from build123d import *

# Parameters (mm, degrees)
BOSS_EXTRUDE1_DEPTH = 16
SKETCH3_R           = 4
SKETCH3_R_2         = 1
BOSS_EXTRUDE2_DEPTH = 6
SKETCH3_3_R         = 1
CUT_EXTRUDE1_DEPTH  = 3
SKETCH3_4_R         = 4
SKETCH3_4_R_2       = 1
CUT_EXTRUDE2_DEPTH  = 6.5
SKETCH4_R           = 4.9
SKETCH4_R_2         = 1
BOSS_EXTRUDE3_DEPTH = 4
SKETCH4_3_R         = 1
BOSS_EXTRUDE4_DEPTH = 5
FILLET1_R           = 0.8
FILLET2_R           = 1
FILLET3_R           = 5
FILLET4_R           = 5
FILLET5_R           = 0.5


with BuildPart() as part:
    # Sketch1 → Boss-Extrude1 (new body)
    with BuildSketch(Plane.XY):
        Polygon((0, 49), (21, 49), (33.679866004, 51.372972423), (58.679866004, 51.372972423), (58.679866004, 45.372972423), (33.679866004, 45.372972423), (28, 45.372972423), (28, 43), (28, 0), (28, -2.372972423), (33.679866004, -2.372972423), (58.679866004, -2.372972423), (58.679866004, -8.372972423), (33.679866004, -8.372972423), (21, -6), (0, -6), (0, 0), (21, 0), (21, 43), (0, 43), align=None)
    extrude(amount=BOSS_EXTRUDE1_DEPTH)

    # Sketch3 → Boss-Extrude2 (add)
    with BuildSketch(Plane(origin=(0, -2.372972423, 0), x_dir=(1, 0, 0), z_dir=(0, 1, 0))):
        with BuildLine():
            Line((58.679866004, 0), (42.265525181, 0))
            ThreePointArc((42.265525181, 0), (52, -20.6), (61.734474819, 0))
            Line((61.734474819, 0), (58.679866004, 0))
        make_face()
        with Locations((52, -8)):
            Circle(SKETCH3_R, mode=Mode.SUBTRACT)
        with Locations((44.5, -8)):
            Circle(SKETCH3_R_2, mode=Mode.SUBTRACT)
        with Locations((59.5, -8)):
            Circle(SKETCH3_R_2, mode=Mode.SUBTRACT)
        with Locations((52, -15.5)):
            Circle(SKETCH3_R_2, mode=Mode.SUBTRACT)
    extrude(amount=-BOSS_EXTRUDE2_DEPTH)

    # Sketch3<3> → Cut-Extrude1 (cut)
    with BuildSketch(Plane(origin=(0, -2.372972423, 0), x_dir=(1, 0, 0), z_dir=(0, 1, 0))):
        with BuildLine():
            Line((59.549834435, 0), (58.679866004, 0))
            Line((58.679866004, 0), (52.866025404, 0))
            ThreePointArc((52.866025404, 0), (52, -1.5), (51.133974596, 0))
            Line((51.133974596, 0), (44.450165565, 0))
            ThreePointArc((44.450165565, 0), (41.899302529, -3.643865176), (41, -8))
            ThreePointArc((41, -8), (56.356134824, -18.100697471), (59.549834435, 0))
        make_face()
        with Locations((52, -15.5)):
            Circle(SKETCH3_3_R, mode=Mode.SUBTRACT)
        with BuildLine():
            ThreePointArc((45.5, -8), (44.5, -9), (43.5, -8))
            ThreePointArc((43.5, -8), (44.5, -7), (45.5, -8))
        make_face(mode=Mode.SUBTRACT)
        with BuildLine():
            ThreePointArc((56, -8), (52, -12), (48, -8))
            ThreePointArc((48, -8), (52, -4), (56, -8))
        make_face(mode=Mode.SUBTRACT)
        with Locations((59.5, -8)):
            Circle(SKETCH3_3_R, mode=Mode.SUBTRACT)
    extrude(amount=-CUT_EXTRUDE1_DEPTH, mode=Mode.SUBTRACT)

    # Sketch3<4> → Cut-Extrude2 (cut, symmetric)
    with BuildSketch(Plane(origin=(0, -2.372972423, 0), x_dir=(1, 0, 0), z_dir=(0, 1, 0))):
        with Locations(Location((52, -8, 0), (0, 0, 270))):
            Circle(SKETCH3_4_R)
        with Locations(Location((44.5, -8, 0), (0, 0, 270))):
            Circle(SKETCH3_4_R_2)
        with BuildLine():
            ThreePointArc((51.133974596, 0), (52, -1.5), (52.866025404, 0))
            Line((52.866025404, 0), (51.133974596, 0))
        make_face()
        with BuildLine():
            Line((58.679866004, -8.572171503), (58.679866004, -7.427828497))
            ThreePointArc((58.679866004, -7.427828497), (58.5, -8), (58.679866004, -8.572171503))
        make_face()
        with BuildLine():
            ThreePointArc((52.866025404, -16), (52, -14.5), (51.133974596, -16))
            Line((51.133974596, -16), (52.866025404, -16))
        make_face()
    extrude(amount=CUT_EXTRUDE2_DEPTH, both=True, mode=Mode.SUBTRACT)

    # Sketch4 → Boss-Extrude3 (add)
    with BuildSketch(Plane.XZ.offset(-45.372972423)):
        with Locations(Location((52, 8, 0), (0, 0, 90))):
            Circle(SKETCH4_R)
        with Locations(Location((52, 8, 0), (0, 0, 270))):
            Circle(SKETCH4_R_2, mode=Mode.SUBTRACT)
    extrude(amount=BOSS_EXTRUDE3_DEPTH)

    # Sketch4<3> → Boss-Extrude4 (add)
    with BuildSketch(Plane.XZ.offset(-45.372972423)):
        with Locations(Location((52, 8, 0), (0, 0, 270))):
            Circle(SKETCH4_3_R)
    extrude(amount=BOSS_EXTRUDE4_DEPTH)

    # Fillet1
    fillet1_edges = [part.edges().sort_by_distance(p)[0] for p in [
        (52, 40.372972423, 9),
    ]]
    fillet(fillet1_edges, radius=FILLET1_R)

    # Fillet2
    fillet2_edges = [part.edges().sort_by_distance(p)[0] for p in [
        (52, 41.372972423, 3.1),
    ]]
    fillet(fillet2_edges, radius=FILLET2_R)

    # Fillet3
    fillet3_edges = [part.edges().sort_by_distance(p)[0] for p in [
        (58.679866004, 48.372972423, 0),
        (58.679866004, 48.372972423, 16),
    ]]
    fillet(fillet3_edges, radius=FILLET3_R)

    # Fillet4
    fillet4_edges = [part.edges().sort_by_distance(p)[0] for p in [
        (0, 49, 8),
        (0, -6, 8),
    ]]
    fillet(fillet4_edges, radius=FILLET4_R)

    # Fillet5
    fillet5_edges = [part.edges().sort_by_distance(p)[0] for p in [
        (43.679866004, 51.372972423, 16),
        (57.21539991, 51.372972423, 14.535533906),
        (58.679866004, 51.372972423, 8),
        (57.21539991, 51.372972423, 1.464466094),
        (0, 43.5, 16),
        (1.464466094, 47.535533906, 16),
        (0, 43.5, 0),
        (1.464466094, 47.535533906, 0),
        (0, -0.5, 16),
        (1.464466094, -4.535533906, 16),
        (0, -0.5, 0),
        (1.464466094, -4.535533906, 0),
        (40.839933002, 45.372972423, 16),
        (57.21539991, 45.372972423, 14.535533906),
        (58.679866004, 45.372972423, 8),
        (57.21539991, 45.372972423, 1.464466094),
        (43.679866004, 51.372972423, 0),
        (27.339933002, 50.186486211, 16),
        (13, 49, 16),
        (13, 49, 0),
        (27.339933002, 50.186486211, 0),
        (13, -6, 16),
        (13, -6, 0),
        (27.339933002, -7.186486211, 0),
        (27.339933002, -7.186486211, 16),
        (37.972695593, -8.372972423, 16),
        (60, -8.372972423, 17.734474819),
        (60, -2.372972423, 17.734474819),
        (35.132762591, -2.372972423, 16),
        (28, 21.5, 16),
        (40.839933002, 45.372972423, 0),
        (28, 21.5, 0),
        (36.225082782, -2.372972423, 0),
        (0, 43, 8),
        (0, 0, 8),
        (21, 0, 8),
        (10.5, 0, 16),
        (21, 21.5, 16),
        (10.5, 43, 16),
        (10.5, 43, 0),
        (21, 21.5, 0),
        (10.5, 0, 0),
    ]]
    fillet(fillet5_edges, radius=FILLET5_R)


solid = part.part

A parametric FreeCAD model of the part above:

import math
import FreeCAD as App
import Part
import Sketcher

V = App.Vector
Q = App.Units.Quantity


def edges_at(feature, points):
    """Names of the edges that pass closest to the given points."""
    edges = feature.Shape.Edges
    near = lambda p: min(range(len(edges)), key=lambda i: edges[i].distToShape(Part.Vertex(*p))[0])
    return sorted({f"Edge{near(p) + 1}" for p in points})

doc = App.newDocument("Part")
body = doc.addObject("PartDesign::Body", "Body")

# Sketch on XY plane
sketch1 = doc.addObject("Sketcher::SketchObject", "Sketch")
body.addObject(sketch1)
sketch1.AttachmentSupport = (doc.XY_Plane, [""])
sketch1.MapMode = "FlatFace"
sketch1.addGeometry([
    Part.LineSegment(V(21, 49, 0), V(0, 49, 0)),  # 0
    Part.LineSegment(V(0, 49, 0), V(0, 43, 0)),  # 1
    Part.LineSegment(V(0, 43, 0), V(21, 43, 0)),  # 2
    Part.LineSegment(V(21, 43, 0), V(21, 0, 0)),  # 3
    Part.LineSegment(V(21, 0, 0), V(0, 0, 0)),  # 4
    Part.LineSegment(V(0, 0, 0), V(0, -6, 0)),  # 5
    Part.LineSegment(V(0, -6, 0), V(21, -6, 0)),  # 6
    Part.LineSegment(V(21, -6, 0), V(33.679866, -8.372972, 0)),  # 7
    Part.LineSegment(V(33.679866, -8.372972, 0), V(58.679866, -8.372972, 0)),  # 8
    Part.LineSegment(V(58.679866, -8.372972, 0), V(58.679866, -2.372972, 0)),  # 9
    Part.LineSegment(V(58.679866, -2.372972, 0), V(28, -2.372972, 0)),  # 10
    Part.LineSegment(V(28, -2.372972, 0), V(28, 45.372972, 0)),  # 11
    Part.LineSegment(V(28, 45.372972, 0), V(58.679866, 45.372972, 0)),  # 12
    Part.LineSegment(V(58.679866, 45.372972, 0), V(58.679866, 51.372972, 0)),  # 13
    Part.LineSegment(V(58.679866, 51.372972, 0), V(33.679866, 51.372972, 0)),  # 14
    Part.LineSegment(V(33.679866, 51.372972, 0), V(21, 49, 0)),  # 15
], False)
sketch1.addConstraint([
    Sketcher.Constraint("Coincident", 0, 2, 1, 1),
    Sketcher.Constraint("Coincident", 1, 2, 2, 1),
    Sketcher.Constraint("Coincident", 2, 2, 3, 1),
    Sketcher.Constraint("Coincident", 3, 2, 4, 1),
    Sketcher.Constraint("Coincident", 4, 2, 5, 1),
    Sketcher.Constraint("Coincident", 5, 2, 6, 1),
    Sketcher.Constraint("Coincident", 6, 2, 7, 1),
    Sketcher.Constraint("Coincident", 7, 2, 8, 1),
    Sketcher.Constraint("Coincident", 8, 2, 9, 1),
    Sketcher.Constraint("Coincident", 9, 2, 10, 1),
    Sketcher.Constraint("Coincident", 10, 2, 11, 1),
    Sketcher.Constraint("Coincident", 11, 2, 12, 1),
    Sketcher.Constraint("Coincident", 12, 2, 13, 1),
    Sketcher.Constraint("Coincident", 13, 2, 14, 1),
    Sketcher.Constraint("Coincident", 14, 2, 15, 1),
    Sketcher.Constraint("Coincident", 15, 2, 0, 1),
    Sketcher.Constraint("Horizontal", 0),
    Sketcher.Constraint("Vertical", 1),
    Sketcher.Constraint("Horizontal", 2),
    Sketcher.Constraint("Vertical", 3),
    Sketcher.Constraint("Horizontal", 4),
    Sketcher.Constraint("Vertical", 5),
    Sketcher.Constraint("Horizontal", 6),
    Sketcher.Constraint("Horizontal", 8),
    Sketcher.Constraint("Vertical", 9),
    Sketcher.Constraint("Horizontal", 10),
    Sketcher.Constraint("Vertical", 11),
    Sketcher.Constraint("Horizontal", 12),
    Sketcher.Constraint("Vertical", 13),
    Sketcher.Constraint("Horizontal", 14),
    Sketcher.Constraint("Coincident", 4, 2, -1, 1),
    Sketcher.Constraint("PointOnObject", 0, 2, -2),
    Sketcher.Constraint("Vertical", 3, 2, 6, 2),
    Sketcher.Constraint("Vertical", 9, 2, 12, 2),
    Sketcher.Constraint("Vertical", 7, 2, 14, 2),
    Sketcher.Constraint("Vertical", 6, 2, 15, 2),
    Sketcher.Constraint("Equal", 1, 5),
    Sketcher.Constraint("Equal", 5, 9),
    Sketcher.Constraint("Equal", 9, 13),
    Sketcher.Constraint("Equal", 7, 15),
    Sketcher.Constraint("DistanceX", 0, 2, 0, 1, Q("21 mm")),
    Sketcher.Constraint("DistanceX", 8, 1, 8, 2, Q("25 mm")),
    Sketcher.Constraint("DistanceY", 1, 2, 1, 1, Q("6 mm")),
    Sketcher.Constraint("DistanceY", 3, 2, 3, 1, Q("43 mm")),
    Sketcher.Constraint("DistanceX", -1, 1, 10, 2, Q("28 mm")),
    Sketcher.Constraint("Angle", 7, Q("-10.6 deg")),
    Sketcher.Constraint("Distance", 7, Q("12.9 mm")),
])
pad1 = doc.addObject("PartDesign::Pad", "Pad")
body.addObject(pad1)
pad1.Profile = sketch1
pad1.Length = 16

# Sketch on XZ plane
sketch2 = doc.addObject("Sketcher::SketchObject", "Sketch001")
body.addObject(sketch2)
sketch2.AttachmentSupport = (doc.XZ_Plane, [""])
sketch2.MapMode = "FlatFace"
sketch2.AttachmentOffset = App.Placement(V(0, 0, 2.372972), App.Rotation())
sketch2.addGeometry([
    Part.ArcOfCircle(Part.Circle(V(52, 8, 0), V(0, 0, 1), 12.6), math.radians(-39.414098), math.radians(219.414098)),  # 0
    Part.LineSegment(V(61.734475, 0, 0), V(42.265525, 0, 0)),  # 1
    Part.Circle(V(52, 15.5, 0), V(0, 0, 1), 1),  # 2
    Part.Circle(V(44.5, 8, 0), V(0, 0, 1), 1),  # 3
    Part.Circle(V(52, 8, 0), V(0, 0, 1), 4),  # 4
    Part.Circle(V(59.5, 8, 0), V(0, 0, 1), 1),  # 5
], False)
sketch2.addConstraint([
    Sketcher.Constraint("Coincident", 0, 1, 1, 1),
    Sketcher.Constraint("Coincident", 1, 2, 0, 2),
    Sketcher.Constraint("Horizontal", 1),
    Sketcher.Constraint("Coincident", 4, 3, 0, 3),
    Sketcher.Constraint("Equal", 2, 3),
    Sketcher.Constraint("Equal", 3, 5),
    Sketcher.Constraint("PointOnObject", 0, 1, -1),
    Sketcher.Constraint("Horizontal", 0, 3, 3, 3),
    Sketcher.Constraint("Horizontal", 4, 3, 5, 3),
    Sketcher.Constraint("Vertical", 0, 3, 2, 3),
    Sketcher.Constraint("Diameter", 2, Q("2 mm")),
    Sketcher.Constraint("Diameter", 4, Q("8 mm")),
    Sketcher.Constraint("Radius", 0, Q("12.6 mm")),
    Sketcher.Constraint("DistanceX", -1, 1, 0, 3, Q("52 mm")),
    Sketcher.Constraint("DistanceY", -1, 1, 0, 3, Q("8 mm")),
    Sketcher.Constraint("DistanceX", 3, 3, 5, 3, Q("15 mm")),
    Sketcher.Constraint("DistanceY", -1, 1, 2, 3, Q("15.5 mm")),
    Sketcher.Constraint("DistanceX", -1, 1, 3, 3, Q("44.5 mm")),
])
pad2 = doc.addObject("PartDesign::Pad", "Pad001")
body.addObject(pad2)
pad2.Profile = sketch2
pad2.Length = 6

# Sketch on XZ plane
sketch3 = doc.addObject("Sketcher::SketchObject", "Sketch002")
body.addObject(sketch3)
sketch3.AttachmentSupport = (doc.XZ_Plane, [""])
sketch3.MapMode = "FlatFace"
sketch3.AttachmentOffset = App.Placement(V(0, 0, 2.372972), App.Rotation())
sketch3.addGeometry([
    Part.LineSegment(V(59.549834, 0, 0), V(52.866025, 0, 0)),  # 0
    Part.ArcOfCircle(Part.Circle(V(52, 0.5, 0), V(0, 0, 1), 1), math.radians(-30), math.radians(210)),  # 1
    Part.LineSegment(V(51.133975, 0, 0), V(44.450166, 0, 0)),  # 2
    Part.ArcOfCircle(Part.Circle(V(52, 8, 0), V(0, 0, 1), 11), math.radians(180), math.radians(226.658242)),  # 3
    Part.ArcOfCircle(Part.Circle(V(52, 8, 0), V(0, 0, 1), 11), math.radians(-46.658242), math.radians(180)),  # 4
    Part.Circle(V(52, 15.5, 0), V(0, 0, 1), 1),  # 5
    Part.Circle(V(44.5, 8, 0), V(0, 0, 1), 1),  # 6
    Part.Circle(V(52, 8, 0), V(0, 0, 1), 4),  # 7
    Part.Circle(V(59.5, 8, 0), V(0, 0, 1), 1),  # 8
], False)
sketch3.addConstraint([
    Sketcher.Constraint("Coincident", 0, 2, 1, 1),
    Sketcher.Constraint("Coincident", 1, 2, 2, 1),
    Sketcher.Constraint("Coincident", 2, 2, 3, 2),
    Sketcher.Constraint("Tangent", 3, 1, 4, 2),
    Sketcher.Constraint("Coincident", 4, 1, 0, 1),
    Sketcher.Constraint("Horizontal", 0),
    Sketcher.Constraint("Horizontal", 2),
    Sketcher.Constraint("Coincident", 7, 3, 3, 3),
    Sketcher.Constraint("Equal", 3, 4),
    Sketcher.Constraint("Equal", 1, 5),
    Sketcher.Constraint("Equal", 5, 6),
    Sketcher.Constraint("Equal", 6, 8),
    Sketcher.Constraint("PointOnObject", 0, 2, -1),
    Sketcher.Constraint("PointOnObject", 1, 2, -1),
    Sketcher.Constraint("Horizontal", 4, 3, 6, 3),
    Sketcher.Constraint("Horizontal", 7, 3, 8, 3),
    Sketcher.Constraint("Horizontal", 8, 3, 3, 1),
    Sketcher.Constraint("Vertical", 1, 3, 3, 3),
    Sketcher.Constraint("Vertical", 4, 3, 5, 3),
    Sketcher.Constraint("Diameter", 5, Q("2 mm")),
    Sketcher.Constraint("Diameter", 7, Q("8 mm")),
    Sketcher.Constraint("Radius", 3, Q("11 mm")),
    Sketcher.Constraint("DistanceX", -1, 1, 1, 3, Q("52 mm")),
    Sketcher.Constraint("DistanceY", -1, 1, 3, 3, Q("8 mm")),
    Sketcher.Constraint("DistanceY", 1, 3, 5, 3, Q("15 mm")),
    Sketcher.Constraint("DistanceY", -1, 1, 1, 3, Q("0.5 mm")),
    Sketcher.Constraint("DistanceX", -1, 1, 6, 3, Q("44.5 mm")),
    Sketcher.Constraint("DistanceX", -1, 1, 8, 3, Q("59.5 mm")),
])
pocket1 = doc.addObject("PartDesign::Pocket", "Pocket")
body.addObject(pocket1)
pocket1.Profile = sketch3
pocket1.Length = 3
pocket1.Reversed = True

# Sketch on XZ plane
sketch4 = doc.addObject("Sketcher::SketchObject", "Sketch003")
body.addObject(sketch4)
sketch4.AttachmentSupport = (doc.XZ_Plane, [""])
sketch4.MapMode = "FlatFace"
sketch4.AttachmentOffset = App.Placement(V(0, 0, 2.372972), App.Rotation())
sketch4.addGeometry([
    Part.Circle(V(52, 8, 0), V(0, 0, 1), 4),  # 0
    Part.Circle(V(44.5, 8, 0), V(0, 0, 1), 1),  # 1
    Part.ArcOfCircle(Part.Circle(V(52, 0.5, 0), V(0, 0, 1), 1), math.radians(-30), math.radians(210)),  # 2
    Part.LineSegment(V(52.866025, 0, 0), V(51.133975, 0, 0)),  # 3
    Part.LineSegment(V(58.679866, 8.572172, 0), V(58.679866, 7.427828, 0)),  # 4
    Part.ArcOfCircle(Part.Circle(V(59.5, 8, 0), V(0, 0, 1), 1), math.radians(145.09821), math.radians(214.90179)),  # 5
    Part.ArcOfCircle(Part.Circle(V(52, 15.5, 0), V(0, 0, 1), 1), math.radians(150), math.radians(390)),  # 6
    Part.LineSegment(V(51.133975, 16, 0), V(52.866025, 16, 0)),  # 7
], False)
sketch4.addConstraint([
    Sketcher.Constraint("Coincident", 2, 1, 3, 1),
    Sketcher.Constraint("Coincident", 3, 2, 2, 2),
    Sketcher.Constraint("Coincident", 4, 1, 5, 1),
    Sketcher.Constraint("Coincident", 5, 2, 4, 2),
    Sketcher.Constraint("Coincident", 6, 1, 7, 1),
    Sketcher.Constraint("Coincident", 7, 2, 6, 2),
    Sketcher.Constraint("Horizontal", 3),
    Sketcher.Constraint("Vertical", 4),
    Sketcher.Constraint("Horizontal", 7),
    Sketcher.Constraint("Equal", 1, 2),
    Sketcher.Constraint("Equal", 2, 5),
    Sketcher.Constraint("Equal", 5, 6),
    Sketcher.Constraint("PointOnObject", 2, 1, -1),
    Sketcher.Constraint("Horizontal", 0, 3, 1, 3),
    Sketcher.Constraint("Horizontal", 1, 3, 5, 3),
    Sketcher.Constraint("Vertical", 0, 3, 2, 3),
    Sketcher.Constraint("Vertical", 2, 3, 6, 3),
    Sketcher.Constraint("Vertical", 3, 2, 6, 1),
    Sketcher.Constraint("Diameter", 0, Q("8 mm")),
    Sketcher.Constraint("Diameter", 1, Q("2 mm")),
    Sketcher.Constraint("DistanceX", -1, 1, 0, 3, Q("52 mm")),
    Sketcher.Constraint("DistanceY", -1, 1, 0, 3, Q("8 mm")),
    Sketcher.Constraint("DistanceY", -1, 1, 6, 1, Q("16 mm")),
    Sketcher.Constraint("DistanceX", 1, 3, 5, 3, Q("15 mm")),
    Sketcher.Constraint("DistanceY", 2, 3, 6, 3, Q("15 mm")),
    Sketcher.Constraint("DistanceX", -1, 1, 1, 3, Q("44.5 mm")),
    Sketcher.Constraint("DistanceY", 4, 2, 4, 1, Q("1.144343 mm")),
])
pocket2 = doc.addObject("PartDesign::Pocket", "Pocket001")
body.addObject(pocket2)
pocket2.Profile = sketch4
pocket2.Length = 13
pocket2.Midplane = True

# Sketch on XZ plane
sketch5 = doc.addObject("Sketcher::SketchObject", "Sketch004")
body.addObject(sketch5)
sketch5.AttachmentSupport = (doc.XZ_Plane, [""])
sketch5.MapMode = "FlatFace"
sketch5.AttachmentOffset = App.Placement(V(0, 0, -45.372972), App.Rotation())
sketch5.addGeometry([
    Part.Circle(V(52, 8, 0), V(0, 0, 1), 4.9),
    Part.Circle(V(52, 8, 0), V(0, 0, 1), 1),
], False)
sketch5.addConstraint([
    Sketcher.Constraint("Coincident", 1, 3, 0, 3),
    Sketcher.Constraint("Diameter", 1, Q("2 mm")),
    Sketcher.Constraint("Diameter", 0, Q("9.8 mm")),
    Sketcher.Constraint("DistanceX", -1, 1, 0, 3, Q("52 mm")),
    Sketcher.Constraint("DistanceY", -1, 1, 0, 3, Q("8 mm")),
])
pad3 = doc.addObject("PartDesign::Pad", "Pad002")
body.addObject(pad3)
pad3.Profile = sketch5
pad3.Length = 4

# Sketch on XZ plane
sketch6 = doc.addObject("Sketcher::SketchObject", "Sketch005")
body.addObject(sketch6)
sketch6.AttachmentSupport = (doc.XZ_Plane, [""])
sketch6.MapMode = "FlatFace"
sketch6.AttachmentOffset = App.Placement(V(0, 0, -45.372972), App.Rotation())
sketch6.addGeometry(Part.Circle(V(52, 8, 0), V(0, 0, 1), 1), False)
sketch6.addConstraint([
    Sketcher.Constraint("Diameter", 0, Q("2 mm")),
    Sketcher.Constraint("DistanceX", -1, 1, 0, 3, Q("52 mm")),
    Sketcher.Constraint("DistanceY", -1, 1, 0, 3, Q("8 mm")),
])
pad4 = doc.addObject("PartDesign::Pad", "Pad003")
body.addObject(pad4)
pad4.Profile = sketch6
pad4.Length = 5
doc.recompute()

fillet = doc.addObject("PartDesign::Fillet", "Fillet")
body.addObject(fillet)
fillet.Base = (pad4, edges_at(pad4, [(52, 40.373, 9)]))
fillet.Radius = 0.8
doc.recompute()

fillet2 = doc.addObject("PartDesign::Fillet", "Fillet001")
body.addObject(fillet2)
fillet2.Base = (fillet, edges_at(fillet, [(52, 41.373, 3.1)]))
fillet2.Radius = 1
doc.recompute()

fillet3 = doc.addObject("PartDesign::Fillet", "Fillet002")
body.addObject(fillet3)
fillet3.Base = (fillet2, edges_at(fillet2, [(58.68, 48.373, 0), (58.68, 48.373, 16)]))
fillet3.Radius = 5
doc.recompute()

fillet4 = doc.addObject("PartDesign::Fillet", "Fillet003")
body.addObject(fillet4)
fillet4.Base = (fillet3, edges_at(fillet3, [(0, 49, 8), (0, -6, 8)]))
fillet4.Radius = 5
doc.recompute()

fillet5 = doc.addObject("PartDesign::Fillet", "Fillet004")
body.addObject(fillet5)
fillet5.Base = (fillet4, edges_at(fillet4, [
    (43.68, 51.373, 16),
    (57.215, 51.373, 14.536),
    (58.68, 51.373, 8),
    (57.215, 51.373, 1.464),
    (0, 43.5, 16),
    (1.464, 47.536, 16),
    (0, 43.5, 0),
    (1.464, 47.536, 0),
    (0, -0.5, 16),
    (1.464, -4.536, 16),
    (0, -0.5, 0),
    (1.464, -4.536, 0),
    (40.84, 45.373, 16),
    (57.215, 45.373, 14.536),
    (58.68, 45.373, 8),
    (57.215, 45.373, 1.464),
    (43.68, 51.373, 0),
    (27.34, 50.186, 16),
    (13, 49, 16),
    (13, 49, 0),
    (27.34, 50.186, 0),
    (13, -6, 16),
    (13, -6, 0),
    (27.34, -7.186, 0),
    (27.34, -7.186, 16),
    (37.973, -8.373, 16),
    (60, -8.373, 17.734),
    (60, -2.373, 17.734),
    (35.133, -2.373, 16),
    (28, 21.5, 16),
    (40.84, 45.373, 0),
    (28, 21.5, 0),
    (36.225, -2.373, 0),
    (0, 43, 8),
    (0, 0, 8),
    (21, 0, 8),
    (10.5, 0, 16),
    (21, 21.5, 16),
    (10.5, 43, 16),
    (10.5, 43, 0),
    (21, 21.5, 0),
    (10.5, 0, 0),
]))
fillet5.Radius = 0.5

doc.recompute()
